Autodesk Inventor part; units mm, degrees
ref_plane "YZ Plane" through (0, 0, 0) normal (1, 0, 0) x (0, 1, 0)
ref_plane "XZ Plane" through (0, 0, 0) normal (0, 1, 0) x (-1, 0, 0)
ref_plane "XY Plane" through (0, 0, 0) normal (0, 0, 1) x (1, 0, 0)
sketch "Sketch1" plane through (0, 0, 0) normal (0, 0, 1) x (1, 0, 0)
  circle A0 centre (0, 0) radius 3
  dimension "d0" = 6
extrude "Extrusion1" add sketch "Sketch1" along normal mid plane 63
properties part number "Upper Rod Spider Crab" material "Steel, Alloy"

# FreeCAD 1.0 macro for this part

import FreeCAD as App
import Part
import Sketcher
Q = App.Units.Quantity

doc = App.newDocument("Part")
body = doc.addObject("PartDesign::Body", "Body")

# Sketch on XY plane
sketch1 = doc.addObject("Sketcher::SketchObject", "Sketch")
body.addObject(sketch1)
sketch1.AttachmentSupport = (doc.XY_Plane, [""])
sketch1.MapMode = "FlatFace"
sketch1.addGeometry(Part.Circle(App.Vector(0, 0, 0), App.Vector(0, 0, 1), 3), False)
sketch1.addConstraint(Sketcher.Constraint("Coincident", 0, 3, -1, 1))
sketch1.addConstraint(Sketcher.Constraint("Diameter", 0, Q("6 mm")))
pad1 = doc.addObject("PartDesign::Pad", "Pad")
body.addObject(pad1)
pad1.Profile = sketch1
pad1.Length = 63
pad1.Midplane = True

doc.recompute()
